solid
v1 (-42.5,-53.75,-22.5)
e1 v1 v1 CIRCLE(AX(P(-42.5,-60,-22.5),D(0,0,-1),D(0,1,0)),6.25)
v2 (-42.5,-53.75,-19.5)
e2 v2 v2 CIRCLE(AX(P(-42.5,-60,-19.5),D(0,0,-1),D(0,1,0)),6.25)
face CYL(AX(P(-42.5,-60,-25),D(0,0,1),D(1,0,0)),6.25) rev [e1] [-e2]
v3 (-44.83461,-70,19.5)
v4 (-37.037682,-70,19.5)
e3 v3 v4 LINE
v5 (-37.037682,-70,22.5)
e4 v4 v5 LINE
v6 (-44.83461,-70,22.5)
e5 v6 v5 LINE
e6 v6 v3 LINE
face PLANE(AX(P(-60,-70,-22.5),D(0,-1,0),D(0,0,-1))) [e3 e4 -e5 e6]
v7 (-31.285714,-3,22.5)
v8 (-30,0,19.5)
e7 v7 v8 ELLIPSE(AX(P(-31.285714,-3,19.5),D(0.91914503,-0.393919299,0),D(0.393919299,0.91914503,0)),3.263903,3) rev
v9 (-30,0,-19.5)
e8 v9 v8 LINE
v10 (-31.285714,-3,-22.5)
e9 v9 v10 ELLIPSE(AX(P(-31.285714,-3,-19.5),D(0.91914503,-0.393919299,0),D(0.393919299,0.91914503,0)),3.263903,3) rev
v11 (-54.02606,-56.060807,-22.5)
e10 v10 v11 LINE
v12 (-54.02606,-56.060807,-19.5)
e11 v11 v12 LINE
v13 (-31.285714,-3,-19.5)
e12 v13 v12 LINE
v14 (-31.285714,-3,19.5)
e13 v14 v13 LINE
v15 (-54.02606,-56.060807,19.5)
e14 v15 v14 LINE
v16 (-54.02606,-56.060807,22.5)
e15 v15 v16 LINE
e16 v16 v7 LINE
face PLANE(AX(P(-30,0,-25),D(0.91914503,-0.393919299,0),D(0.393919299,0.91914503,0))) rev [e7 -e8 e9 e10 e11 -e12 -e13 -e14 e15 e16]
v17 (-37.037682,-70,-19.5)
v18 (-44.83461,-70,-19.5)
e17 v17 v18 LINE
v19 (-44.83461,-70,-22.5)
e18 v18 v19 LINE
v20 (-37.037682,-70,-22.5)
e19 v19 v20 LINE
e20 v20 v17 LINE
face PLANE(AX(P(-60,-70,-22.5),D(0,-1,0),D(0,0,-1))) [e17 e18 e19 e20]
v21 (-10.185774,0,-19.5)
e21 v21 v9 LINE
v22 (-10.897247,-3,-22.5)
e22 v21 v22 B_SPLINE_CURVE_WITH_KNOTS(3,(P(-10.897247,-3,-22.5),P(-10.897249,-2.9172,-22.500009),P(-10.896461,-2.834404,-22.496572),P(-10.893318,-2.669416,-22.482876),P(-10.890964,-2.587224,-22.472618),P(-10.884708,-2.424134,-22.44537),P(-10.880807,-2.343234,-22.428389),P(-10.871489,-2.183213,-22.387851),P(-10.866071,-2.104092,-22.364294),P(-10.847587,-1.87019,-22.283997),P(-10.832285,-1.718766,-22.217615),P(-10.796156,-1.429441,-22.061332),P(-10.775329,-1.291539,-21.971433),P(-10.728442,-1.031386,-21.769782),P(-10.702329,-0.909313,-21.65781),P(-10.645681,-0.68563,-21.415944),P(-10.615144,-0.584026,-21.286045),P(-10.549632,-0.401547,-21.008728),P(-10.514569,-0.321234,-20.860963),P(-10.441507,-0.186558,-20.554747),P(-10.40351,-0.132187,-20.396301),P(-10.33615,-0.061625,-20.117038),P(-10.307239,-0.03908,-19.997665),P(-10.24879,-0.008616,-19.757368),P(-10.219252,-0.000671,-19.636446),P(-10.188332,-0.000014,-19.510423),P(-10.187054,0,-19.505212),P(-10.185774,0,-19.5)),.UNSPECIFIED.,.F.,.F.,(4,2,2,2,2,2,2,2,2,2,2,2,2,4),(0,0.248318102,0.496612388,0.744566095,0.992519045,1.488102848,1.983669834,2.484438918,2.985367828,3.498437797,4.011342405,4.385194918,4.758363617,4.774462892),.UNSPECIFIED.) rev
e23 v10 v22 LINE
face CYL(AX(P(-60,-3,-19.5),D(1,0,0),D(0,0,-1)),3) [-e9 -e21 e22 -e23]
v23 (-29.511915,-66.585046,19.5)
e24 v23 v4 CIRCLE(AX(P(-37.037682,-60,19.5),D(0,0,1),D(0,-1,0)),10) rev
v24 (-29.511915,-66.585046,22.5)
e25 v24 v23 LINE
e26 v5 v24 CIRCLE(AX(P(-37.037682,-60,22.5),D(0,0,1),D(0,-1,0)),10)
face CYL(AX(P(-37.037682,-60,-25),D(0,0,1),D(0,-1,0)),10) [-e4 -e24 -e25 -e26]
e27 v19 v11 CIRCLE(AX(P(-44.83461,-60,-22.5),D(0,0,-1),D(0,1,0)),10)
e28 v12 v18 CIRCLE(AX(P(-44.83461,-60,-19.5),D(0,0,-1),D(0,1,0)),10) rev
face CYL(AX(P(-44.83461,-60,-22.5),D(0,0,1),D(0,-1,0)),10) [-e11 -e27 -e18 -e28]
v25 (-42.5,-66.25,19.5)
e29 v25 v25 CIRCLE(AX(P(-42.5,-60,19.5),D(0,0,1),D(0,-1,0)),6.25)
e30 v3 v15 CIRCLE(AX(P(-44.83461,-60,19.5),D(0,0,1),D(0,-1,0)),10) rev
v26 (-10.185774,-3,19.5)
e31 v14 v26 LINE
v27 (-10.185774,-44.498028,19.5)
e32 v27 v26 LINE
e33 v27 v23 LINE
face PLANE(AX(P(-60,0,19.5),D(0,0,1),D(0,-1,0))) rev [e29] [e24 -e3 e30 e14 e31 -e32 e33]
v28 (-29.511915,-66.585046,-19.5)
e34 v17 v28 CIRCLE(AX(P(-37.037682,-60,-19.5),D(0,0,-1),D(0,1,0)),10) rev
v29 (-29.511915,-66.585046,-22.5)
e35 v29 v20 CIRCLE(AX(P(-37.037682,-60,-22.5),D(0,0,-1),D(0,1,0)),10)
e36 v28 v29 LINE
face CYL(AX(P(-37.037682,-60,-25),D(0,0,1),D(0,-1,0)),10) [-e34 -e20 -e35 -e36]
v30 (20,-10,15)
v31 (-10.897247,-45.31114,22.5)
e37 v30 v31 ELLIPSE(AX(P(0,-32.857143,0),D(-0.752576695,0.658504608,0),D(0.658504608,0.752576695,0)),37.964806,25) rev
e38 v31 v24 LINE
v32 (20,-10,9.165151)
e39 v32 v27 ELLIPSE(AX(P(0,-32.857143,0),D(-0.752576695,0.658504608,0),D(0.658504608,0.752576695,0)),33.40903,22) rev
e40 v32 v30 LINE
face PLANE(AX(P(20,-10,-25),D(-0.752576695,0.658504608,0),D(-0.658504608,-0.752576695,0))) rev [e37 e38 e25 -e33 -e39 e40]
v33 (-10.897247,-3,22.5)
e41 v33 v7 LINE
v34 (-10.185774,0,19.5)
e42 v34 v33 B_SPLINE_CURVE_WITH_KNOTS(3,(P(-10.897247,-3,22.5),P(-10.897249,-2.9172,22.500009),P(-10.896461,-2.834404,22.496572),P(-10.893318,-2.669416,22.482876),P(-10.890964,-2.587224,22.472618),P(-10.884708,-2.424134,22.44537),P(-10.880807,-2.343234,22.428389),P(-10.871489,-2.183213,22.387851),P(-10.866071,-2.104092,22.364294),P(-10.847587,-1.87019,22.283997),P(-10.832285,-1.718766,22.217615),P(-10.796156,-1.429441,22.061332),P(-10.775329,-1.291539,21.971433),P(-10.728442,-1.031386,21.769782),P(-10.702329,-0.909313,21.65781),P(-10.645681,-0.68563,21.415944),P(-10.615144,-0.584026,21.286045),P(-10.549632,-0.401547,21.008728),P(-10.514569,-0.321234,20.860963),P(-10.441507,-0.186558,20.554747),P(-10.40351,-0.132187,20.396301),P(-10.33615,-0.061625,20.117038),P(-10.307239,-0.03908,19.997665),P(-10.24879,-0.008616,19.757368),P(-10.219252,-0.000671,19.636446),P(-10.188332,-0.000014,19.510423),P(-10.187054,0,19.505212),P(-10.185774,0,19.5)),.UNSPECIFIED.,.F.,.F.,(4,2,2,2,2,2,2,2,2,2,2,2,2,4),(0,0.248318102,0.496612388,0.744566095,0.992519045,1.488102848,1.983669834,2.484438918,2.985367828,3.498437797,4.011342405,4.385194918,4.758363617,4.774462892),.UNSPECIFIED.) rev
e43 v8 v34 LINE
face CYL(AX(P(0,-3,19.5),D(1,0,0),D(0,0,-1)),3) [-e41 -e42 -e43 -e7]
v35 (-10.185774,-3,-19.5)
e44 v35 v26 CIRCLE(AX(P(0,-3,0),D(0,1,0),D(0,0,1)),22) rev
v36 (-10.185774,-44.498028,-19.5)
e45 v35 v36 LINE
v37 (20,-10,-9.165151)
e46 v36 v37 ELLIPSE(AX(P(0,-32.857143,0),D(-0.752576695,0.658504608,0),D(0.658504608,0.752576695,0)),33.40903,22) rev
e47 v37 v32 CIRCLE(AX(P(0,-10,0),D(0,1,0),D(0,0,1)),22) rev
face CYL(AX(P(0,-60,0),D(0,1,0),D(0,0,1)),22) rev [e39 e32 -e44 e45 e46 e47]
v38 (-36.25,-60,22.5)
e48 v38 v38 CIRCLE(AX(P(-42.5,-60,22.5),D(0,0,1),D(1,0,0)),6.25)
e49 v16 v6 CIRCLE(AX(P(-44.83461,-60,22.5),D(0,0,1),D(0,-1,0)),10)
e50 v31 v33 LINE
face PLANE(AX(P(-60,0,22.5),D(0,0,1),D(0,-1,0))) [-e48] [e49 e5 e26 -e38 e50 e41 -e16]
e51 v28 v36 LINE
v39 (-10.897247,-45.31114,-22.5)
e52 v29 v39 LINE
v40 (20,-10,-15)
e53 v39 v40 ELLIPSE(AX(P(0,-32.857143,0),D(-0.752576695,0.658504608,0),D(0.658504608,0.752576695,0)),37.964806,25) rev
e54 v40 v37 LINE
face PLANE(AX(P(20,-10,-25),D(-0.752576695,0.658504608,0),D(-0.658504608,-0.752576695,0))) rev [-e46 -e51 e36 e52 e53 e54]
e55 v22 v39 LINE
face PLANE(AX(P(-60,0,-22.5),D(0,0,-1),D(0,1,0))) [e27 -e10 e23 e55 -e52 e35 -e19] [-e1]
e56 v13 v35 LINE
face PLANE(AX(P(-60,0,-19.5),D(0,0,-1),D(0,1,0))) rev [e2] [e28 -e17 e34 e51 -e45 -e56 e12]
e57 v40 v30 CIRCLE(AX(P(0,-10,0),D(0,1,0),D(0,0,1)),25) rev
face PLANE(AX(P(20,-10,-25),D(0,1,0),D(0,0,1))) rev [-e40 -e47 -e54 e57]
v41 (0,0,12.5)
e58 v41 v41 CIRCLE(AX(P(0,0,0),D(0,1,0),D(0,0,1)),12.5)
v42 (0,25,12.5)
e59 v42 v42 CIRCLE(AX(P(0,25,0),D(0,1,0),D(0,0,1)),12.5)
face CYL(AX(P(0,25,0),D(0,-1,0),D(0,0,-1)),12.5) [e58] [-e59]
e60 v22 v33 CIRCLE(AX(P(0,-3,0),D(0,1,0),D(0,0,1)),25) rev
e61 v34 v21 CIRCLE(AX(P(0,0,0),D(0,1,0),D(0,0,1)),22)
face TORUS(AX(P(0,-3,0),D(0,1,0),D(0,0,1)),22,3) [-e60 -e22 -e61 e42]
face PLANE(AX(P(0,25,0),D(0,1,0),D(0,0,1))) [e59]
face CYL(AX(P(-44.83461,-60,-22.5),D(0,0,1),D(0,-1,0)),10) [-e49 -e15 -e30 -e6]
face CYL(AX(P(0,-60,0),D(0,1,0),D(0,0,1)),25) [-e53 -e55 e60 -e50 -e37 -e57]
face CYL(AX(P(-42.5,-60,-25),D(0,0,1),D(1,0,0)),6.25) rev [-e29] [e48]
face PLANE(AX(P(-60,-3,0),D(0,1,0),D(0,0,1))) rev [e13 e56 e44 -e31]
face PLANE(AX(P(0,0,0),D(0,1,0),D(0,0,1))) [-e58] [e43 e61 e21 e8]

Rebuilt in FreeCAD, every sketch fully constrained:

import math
import FreeCAD as App
import Part
import Sketcher
Q = App.Units.Quantity


def edges_at(feature, points):
    """Names of the edges that pass closest to the given points."""
    edges = feature.Shape.Edges
    near = lambda p: min(range(len(edges)), key=lambda i: edges[i].distToShape(Part.Vertex(*p))[0])
    return sorted({f"Edge{near(p) + 1}" for p in points})


def add_polygon(sketch, points):
    """Adds a closed chain of lines whose ends are joined by coincident constraints."""
    first, n = sketch.GeometryCount, len(points)
    for a, b in zip(points, points[1:] + points[:1]):
        sketch.addGeometry(Part.LineSegment(App.Vector(*a, 0), App.Vector(*b, 0)), False)
    for i in range(n):
        sketch.addConstraint(Sketcher.Constraint("Coincident", first + i, 2, first + (i + 1) % n, 1))

doc = App.newDocument("Part")
body = doc.addObject("PartDesign::Body", "Body")

# Sketch on XZ plane
sketch1 = doc.addObject("Sketcher::SketchObject", "Sketch")
body.addObject(sketch1)
sketch1.AttachmentSupport = (doc.XZ_Plane, [""])
sketch1.MapMode = "FlatFace"
sketch1.addGeometry([
    Part.Circle(App.Vector(0, 0, 0), App.Vector(0, 0, 1), 25),
    Part.Circle(App.Vector(0, 0, 0), App.Vector(0, 0, 1), 22),
], False)
sketch1.addConstraint([
    Sketcher.Constraint("Coincident", 0, 3, -1, 1),
    Sketcher.Constraint("Coincident", 1, 3, -1, 1),
    Sketcher.Constraint("Diameter", 0, Q("50 mm")),
    Sketcher.Constraint("Diameter", 1, Q("44 mm")),
])
pad1 = doc.addObject("PartDesign::Pad", "Pad")
body.addObject(pad1)
pad1.Profile = sketch1
pad1.Length = 60

# Sketch on YZ plane
sketch2 = doc.addObject("Sketcher::SketchObject", "Sketch001")
body.addObject(sketch2)
sketch2.AttachmentSupport = (doc.YZ_Plane, [""])
sketch2.MapMode = "FlatFace"
add_polygon(sketch2, [(0, 22), (-70, 22), (-70, -22), (0, -22)])  # lines 0-3
add_polygon(sketch2, [(-67, -20), (-67, 20), (-3, 20), (-3, -20)])  # lines 4-7
sketch2.addConstraint([
    Sketcher.Constraint("Horizontal", 0),
    Sketcher.Constraint("Vertical", 1),
    Sketcher.Constraint("Horizontal", 2),
    Sketcher.Constraint("Vertical", 3),
    Sketcher.Constraint("Vertical", 4),
    Sketcher.Constraint("Horizontal", 5),
    Sketcher.Constraint("Vertical", 6),
    Sketcher.Constraint("Horizontal", 7),
    Sketcher.Constraint("Symmetric", 2, 2, 3, 2, -1, 1),
    Sketcher.Constraint("DistanceX", 0, 2, 0, 1, Q("70 mm")),
    Sketcher.Constraint("DistanceX", 5, 1, 5, 2, Q("64 mm")),
    Sketcher.Constraint("DistanceY", 1, 2, 1, 1, Q("45 mm")),
    Sketcher.Constraint("DistanceY", 4, 1, 4, 2, Q("39 mm")),
    Sketcher.Constraint("DistanceX", 4, 2, -1, 1, Q("67 mm")),
    Sketcher.Constraint("DistanceY", 4, 2, 0, 2, Q("3 mm")),
])
pad2 = doc.addObject("PartDesign::Pad", "Pad001")
body.addObject(pad2)
pad2.Profile = sketch2
pad2.Length = 60
pad2.Reversed = True

# Sketch on XZ plane
sketch3 = doc.addObject("Sketcher::SketchObject", "Sketch002")
body.addObject(sketch3)
sketch3.AttachmentSupport = (doc.XZ_Plane, [""])
sketch3.MapMode = "FlatFace"
sketch3.addGeometry(Part.Circle(App.Vector(0, 0, 0), App.Vector(0, 0, 1), 22), False)
sketch3.addConstraint([
    Sketcher.Constraint("Coincident", 0, 3, -1, 1),
    Sketcher.Constraint("Diameter", 0, Q("44 mm")),
])
pocket1 = doc.addObject("PartDesign::Pocket", "Pocket")
body.addObject(pocket1)
pocket1.Profile = sketch3
pocket1.Type = "ThroughAll"
pocket1.Reversed = True

# Sketch on XY plane
sketch4 = doc.addObject("Sketcher::SketchObject", "Sketch003")
body.addObject(sketch4)
sketch4.AttachmentSupport = (doc.XY_Plane, [""])
sketch4.MapMode = "FlatFace"
add_polygon(sketch4, [(20, -10), (-50, -90), (25, -90), (25, -10)])  # lines 0-3
sketch4.addConstraint([
    Sketcher.Constraint("Horizontal", 1),
    Sketcher.Constraint("Vertical", 2),
    Sketcher.Constraint("Horizontal", 3),
    Sketcher.Constraint("DistanceX", 1, 1, 1, 2, Q("75 mm")),
    Sketcher.Constraint("DistanceX", 3, 2, 3, 1, Q("5 mm")),
    Sketcher.Constraint("DistanceY", 2, 1, 2, 2, Q("80 mm")),
    Sketcher.Constraint("DistanceX", 0, 2, -1, 1, Q("50 mm")),
    Sketcher.Constraint("DistanceY", 0, 2, -1, 1, Q("90 mm")),
])
pocket2 = doc.addObject("PartDesign::Pocket", "Pocket001")
body.addObject(pocket2)
pocket2.Profile = sketch4
pocket2.Type = "ThroughAll"
pocket2.Midplane = True

# Sketch on YZ plane
sketch5 = doc.addObject("Sketcher::SketchObject", "Sketch004")
body.addObject(sketch5)
sketch5.AttachmentSupport = (doc.YZ_Plane, [""])
sketch5.MapMode = "FlatFace"
sketch5.AttachmentOffset = App.Placement(App.Vector(0, 0, -60), App.Rotation())
add_polygon(sketch5, [(-3, -20), (-67, -20), (-67, 20), (-3, 20)])  # lines 0-3
sketch5.addConstraint([
    Sketcher.Constraint("Horizontal", 0),
    Sketcher.Constraint("Vertical", 1),
    Sketcher.Constraint("Horizontal", 2),
    Sketcher.Constraint("Vertical", 3),
    Sketcher.Constraint("DistanceX", 0, 2, 0, 1, Q("64 mm")),
    Sketcher.Constraint("DistanceY", 1, 1, 1, 2, Q("39 mm")),
    Sketcher.Constraint("DistanceX", 0, 2, -1, 1, Q("67 mm")),
    Sketcher.Constraint("DistanceY", 0, 2, -1, 1, Q("19.5 mm")),
])
pocket3 = doc.addObject("PartDesign::Pocket", "Pocket002")
body.addObject(pocket3)
pocket3.Profile = sketch5
pocket3.Length = 50
pocket3.Reversed = True

# Sketch on XY plane
sketch6 = doc.addObject("Sketcher::SketchObject", "Sketch005")
body.addObject(sketch6)
sketch6.AttachmentSupport = (doc.XY_Plane, [""])
sketch6.MapMode = "FlatFace"
add_polygon(sketch6, [(-60, -70), (-30, 0), (-60, 0)])  # lines 0-2
sketch6.addConstraint([
    Sketcher.Constraint("Horizontal", 1),
    Sketcher.Constraint("Vertical", 2),
    Sketcher.Constraint("PointOnObject", 0, 2, -1),
    Sketcher.Constraint("DistanceX", 1, 2, 1, 1, Q("30 mm")),
    Sketcher.Constraint("DistanceY", 2, 2, 2, 1, Q("70 mm")),
    Sketcher.Constraint("DistanceX", 0, 2, -1, 1, Q("30 mm")),
])
pocket4 = doc.addObject("PartDesign::Pocket", "Pocket003")
body.addObject(pocket4)
pocket4.Profile = sketch6
pocket4.Type = "ThroughAll"
pocket4.Midplane = True

# Sketch on XZ plane
sketch7 = doc.addObject("Sketcher::SketchObject", "Sketch006")
body.addObject(sketch7)
sketch7.AttachmentSupport = (doc.XZ_Plane, [""])
sketch7.MapMode = "FlatFace"
sketch7.AttachmentOffset = App.Placement(App.Vector(0, 0, 67), App.Rotation())
add_polygon(sketch7, [(-65, -20), (-65, 20), (-30, 20), (-30, -20)])  # lines 0-3
sketch7.addConstraint([
    Sketcher.Constraint("Vertical", 0),
    Sketcher.Constraint("Horizontal", 1),
    Sketcher.Constraint("Vertical", 2),
    Sketcher.Constraint("Horizontal", 3),
    Sketcher.Constraint("DistanceX", 1, 1, 1, 2, Q("35 mm")),
    Sketcher.Constraint("DistanceY", 0, 1, 0, 2, Q("39 mm")),
    Sketcher.Constraint("DistanceY", -1, 1, 0, 2, Q("19.5 mm")),
    Sketcher.Constraint("DistanceX", 0, 2, -1, 1, Q("64.875 mm")),
])
pocket5 = doc.addObject("PartDesign::Pocket", "Pocket004")
body.addObject(pocket5)
pocket5.Profile = sketch7
pocket5.Type = "ThroughAll"
pocket5.Reversed = True

# Sketch on XZ plane
sketch8 = doc.addObject("Sketcher::SketchObject", "Sketch007")
body.addObject(sketch8)
sketch8.AttachmentSupport = (doc.XZ_Plane, [""])
sketch8.MapMode = "FlatFace"
sketch8.addGeometry([
    Part.LineSegment(App.Vector(-11, -22, 0), App.Vector(-30, -22, 0)),
    Part.LineSegment(App.Vector(-30, -22, 0), App.Vector(-30, 22, 0)),
    Part.LineSegment(App.Vector(-30, 22, 0), App.Vector(-11, 22, 0)),
    Part.ArcOfCircle(Part.Circle(App.Vector(0, 0, 0), App.Vector(0, 0, 1), 25), math.radians(-116), math.radians(116)),
], False)
sketch8.addConstraint([
    Sketcher.Constraint("Coincident", 0, 2, 1, 1),
    Sketcher.Constraint("Coincident", 1, 2, 2, 1),
    Sketcher.Constraint("Coincident", 2, 2, 3, 2),
    Sketcher.Constraint("Coincident", 3, 1, 0, 1),
    Sketcher.Constraint("Horizontal", 0),
    Sketcher.Constraint("Vertical", 1),
    Sketcher.Constraint("Horizontal", 2),
    Sketcher.Constraint("Coincident", 3, 3, -1, 1),
    Sketcher.Constraint("Vertical", 2, 2, 3, 1),
    Sketcher.Constraint("Radius", 3, Q("25 mm")),
    Sketcher.Constraint("DistanceY", 1, 1, 1, 2, Q("45 mm")),
    Sketcher.Constraint("DistanceX", 0, 2, -1, 1, Q("30 mm")),
])
pad3 = doc.addObject("PartDesign::Pad", "Pad002")
body.addObject(pad3)
pad3.Profile = sketch8
pad3.Length = 3
doc.recompute()

fillet = doc.addObject("PartDesign::Fillet", "Fillet")
body.addObject(fillet)
fillet.Base = (pad3, edges_at(pad3, [(25, 0, 0), (-20.449, 0, -22.5), (-20.449, 0, 22.5)]))
fillet.Radius = 3

# Sketch on XY plane
sketch9 = doc.addObject("Sketcher::SketchObject", "Sketch008")
body.addObject(sketch9)
sketch9.AttachmentSupport = (doc.XY_Plane, [""])
sketch9.MapMode = "FlatFace"
sketch9.AttachmentOffset = App.Placement(App.Vector(0, 0, 22.5), App.Rotation())
sketch9.addGeometry(Part.Circle(App.Vector(-42, -60, 0), App.Vector(0, 0, 1), 6), False)
sketch9.addConstraint([
    Sketcher.Constraint("Diameter", 0, Q("12.5 mm")),
    Sketcher.Constraint("DistanceY", 0, 3, -1, 1, Q("60 mm")),
    Sketcher.Constraint("DistanceX", 0, 3, -1, 1, Q("42.5 mm")),
])
pocket6 = doc.addObject("PartDesign::Pocket", "Pocket005")
body.addObject(pocket6)
pocket6.Profile = sketch9
pocket6.Type = "ThroughAll"
doc.recompute()

fillet2 = doc.addObject("PartDesign::Fillet", "Fillet001")
body.addObject(fillet2)
fillet2.Base = (pocket6, edges_at(pocket6, [
    (-60, -70, -21),
    (-32.5, -70, -21),
    (-60, -70, 21),
    (-32.5, -70, 21),
]))
fillet2.Radius = 10

# Sketch on XZ plane
sketch10 = doc.addObject("Sketcher::SketchObject", "Sketch009")
body.addObject(sketch10)
sketch10.AttachmentSupport = (doc.XZ_Plane, [""])
sketch10.MapMode = "FlatFace"
sketch10.addGeometry(Part.Circle(App.Vector(0, 0, 0), App.Vector(0, 0, 1), 12), False)
sketch10.addConstraint([
    Sketcher.Constraint("Coincident", 0, 3, -1, 1),
    Sketcher.Constraint("Diameter", 0, Q("25 mm")),
])
pad4 = doc.addObject("PartDesign::Pad", "Pad003")
body.addObject(pad4)
pad4.Profile = sketch10
pad4.Length = 25
pad4.Reversed = True

doc.recompute()
